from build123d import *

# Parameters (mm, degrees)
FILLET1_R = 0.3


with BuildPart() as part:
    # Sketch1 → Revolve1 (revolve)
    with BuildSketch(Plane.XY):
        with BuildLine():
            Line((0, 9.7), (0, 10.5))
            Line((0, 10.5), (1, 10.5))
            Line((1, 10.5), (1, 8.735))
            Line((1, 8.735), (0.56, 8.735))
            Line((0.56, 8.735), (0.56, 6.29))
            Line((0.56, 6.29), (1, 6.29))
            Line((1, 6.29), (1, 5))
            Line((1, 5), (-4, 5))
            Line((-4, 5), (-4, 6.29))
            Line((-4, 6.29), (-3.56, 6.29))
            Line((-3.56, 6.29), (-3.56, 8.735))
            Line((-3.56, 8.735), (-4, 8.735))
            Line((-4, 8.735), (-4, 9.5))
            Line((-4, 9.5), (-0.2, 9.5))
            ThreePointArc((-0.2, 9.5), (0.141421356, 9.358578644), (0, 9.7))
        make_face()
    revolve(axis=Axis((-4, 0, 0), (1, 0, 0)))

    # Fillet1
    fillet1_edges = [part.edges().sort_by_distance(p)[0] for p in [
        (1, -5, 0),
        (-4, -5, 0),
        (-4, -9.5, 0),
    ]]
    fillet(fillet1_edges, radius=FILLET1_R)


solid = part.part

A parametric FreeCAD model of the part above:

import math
import FreeCAD as App
import Part
import Sketcher
from FreeCAD import Vector
Q = App.Units.Quantity


def edges_at(feature, points):
    """Names of the edges that pass closest to the given points."""
    edges = feature.Shape.Edges
    near = lambda p: min(range(len(edges)), key=lambda i: edges[i].distToShape(Part.Vertex(*p))[0])
    return sorted({f"Edge{near(p) + 1}" for p in points})

doc = App.newDocument("Part")
params = doc.addObject("Spreadsheet::Sheet", "Params")
for row, (alias, value) in enumerate([
    ("sketch1_radius", "0.2 mm"),
    ("sketch1_width", "5 mm"),
    ("sketch1_width2", "1 mm"),
    ("sketch1_height", "0.8 mm"),
    ("sketch1_width3", "0.44 mm"),
    ("revolution_angle", "360 deg"),
    ("fillet_radius", "0.3 mm"),
], start=1):
    params.set(f"A{row}", alias)
    params.set(f"B{row}", "=" + value)
    params.setAlias(f"B{row}", alias)

body = doc.addObject("PartDesign::Body", "Body")

# Sketch on XY plane
sketch1 = body.newObject("Sketcher::SketchObject", "Sketch")
sketch1.AttachmentSupport = (doc.getObject("XY_Plane"), [""])
sketch1.MapMode = "FlatFace"
sketch1.addGeometry([
    Part.LineSegment(Vector(0, 10.5, 0), Vector(0, 9.7, 0)),  # 0
    Part.ArcOfCircle(Part.Circle(Vector(0, 9.5, 0), Vector(0, 0, 1), 0.2), math.radians(180), math.radians(450)),  # 1
    Part.LineSegment(Vector(-0.2, 9.5, 0), Vector(-4, 9.5, 0)),  # 2
    Part.LineSegment(Vector(-4, 9.5, 0), Vector(-4, 8.73, 0)),  # 3
    Part.LineSegment(Vector(-4, 8.73, 0), Vector(-3.56, 8.73, 0)),  # 4
    Part.LineSegment(Vector(-3.56, 8.73, 0), Vector(-3.56, 6.29, 0)),  # 5
    Part.LineSegment(Vector(-3.56, 6.29, 0), Vector(-4, 6.29, 0)),  # 6
    Part.LineSegment(Vector(-4, 6.29, 0), Vector(-4, 5, 0)),  # 7
    Part.LineSegment(Vector(-4, 5, 0), Vector(1, 5, 0)),  # 8
    Part.LineSegment(Vector(1, 5, 0), Vector(1, 6.29, 0)),  # 9
    Part.LineSegment(Vector(1, 6.29, 0), Vector(0.56, 6.29, 0)),  # 10
    Part.LineSegment(Vector(0.56, 6.29, 0), Vector(0.56, 8.73, 0)),  # 11
    Part.LineSegment(Vector(0.56, 8.73, 0), Vector(1, 8.73, 0)),  # 12
    Part.LineSegment(Vector(1, 8.73, 0), Vector(1, 10.5, 0)),  # 13
    Part.LineSegment(Vector(1, 10.5, 0), Vector(0, 10.5, 0)),  # 14
], False)
sketch1.addConstraint([
    Sketcher.Constraint("Coincident", 0, 2, 1, 2),
    Sketcher.Constraint("Coincident", 1, 1, 2, 1),
    Sketcher.Constraint("Coincident", 2, 2, 3, 1),
    Sketcher.Constraint("Coincident", 3, 2, 4, 1),
    Sketcher.Constraint("Coincident", 4, 2, 5, 1),
    Sketcher.Constraint("Coincident", 5, 2, 6, 1),
    Sketcher.Constraint("Coincident", 6, 2, 7, 1),
    Sketcher.Constraint("Coincident", 7, 2, 8, 1),
    Sketcher.Constraint("Coincident", 8, 2, 9, 1),
    Sketcher.Constraint("Coincident", 9, 2, 10, 1),
    Sketcher.Constraint("Coincident", 10, 2, 11, 1),
    Sketcher.Constraint("Coincident", 11, 2, 12, 1),
    Sketcher.Constraint("Coincident", 12, 2, 13, 1),
    Sketcher.Constraint("Coincident", 13, 2, 14, 1),
    Sketcher.Constraint("Coincident", 14, 2, 0, 1),
    Sketcher.Constraint("Vertical", 0),
    Sketcher.Constraint("Horizontal", 2),
    Sketcher.Constraint("Vertical", 3),
    Sketcher.Constraint("Horizontal", 4),
    Sketcher.Constraint("Vertical", 5),
    Sketcher.Constraint("Horizontal", 6),
    Sketcher.Constraint("Vertical", 7),
    Sketcher.Constraint("Horizontal", 8),
    Sketcher.Constraint("Vertical", 9),
    Sketcher.Constraint("Horizontal", 10),
    Sketcher.Constraint("Vertical", 11),
    Sketcher.Constraint("Horizontal", 12),
    Sketcher.Constraint("Vertical", 13),
    Sketcher.Constraint("Horizontal", 14),
    Sketcher.Constraint("PointOnObject", 1, 3, -2),
    Sketcher.Constraint("PointOnObject", 0, 2, -2),
    Sketcher.Constraint("Horizontal", 6, 2, 9, 2),
    Sketcher.Constraint("Horizontal", 4, 2, 11, 2),
    Sketcher.Constraint("Vertical", 3, 2, 6, 2),
    Sketcher.Constraint("Vertical", 9, 2, 12, 2),
    Sketcher.Constraint("Equal", 6, 10),
    Sketcher.Constraint("Radius", 1, Q("0.2 mm")),
    Sketcher.Constraint("DistanceX", 8, 1, 8, 2, Q("5 mm")),
    Sketcher.Constraint("DistanceX", 14, 2, 14, 1, Q("1 mm")),
    Sketcher.Constraint("DistanceY", 0, 2, 0, 1, Q("0.8 mm")),
    Sketcher.Constraint("DistanceY", -1, 1, 7, 2, Q("5 mm")),
    Sketcher.Constraint("DistanceY", 1, 1, 13, 2, Q("1 mm")),
    Sketcher.Constraint("DistanceX", 4, 1, 4, 2, Q("0.44 mm")),
    Sketcher.Constraint("DistanceY", 7, 2, 7, 1, Q("1.29 mm")),
    Sketcher.Constraint("DistanceY", -1, 1, 1, 3, Q("9.5 mm")),
    Sketcher.Constraint("DistanceY", 3, 2, 3, 1, Q("0.765 mm")),
])
sketch1.setExpression("Constraints[36]", "Params.sketch1_radius")
sketch1.setExpression("Constraints[37]", "Params.sketch1_width")
sketch1.setExpression("Constraints[38]", "Params.sketch1_width2")
sketch1.setExpression("Constraints[39]", "Params.sketch1_height")
sketch1.setExpression("Constraints[42]", "Params.sketch1_width3")
revolution = body.newObject("PartDesign::Revolution", "Revolution")
revolution.Profile = sketch1
revolution.ReferenceAxis = (sketch1, ["H_Axis"])
revolution.setExpression("Angle", "Params.revolution_angle")
doc.recompute()

fillet = body.newObject("PartDesign::Fillet", "Fillet")
fillet.Base = (revolution, edges_at(revolution, [(1, -5, 0), (-4, -5, 0), (-4, -9.5, 0)]))
fillet.setExpression("Radius", "Params.fillet_radius")

doc.recompute()
